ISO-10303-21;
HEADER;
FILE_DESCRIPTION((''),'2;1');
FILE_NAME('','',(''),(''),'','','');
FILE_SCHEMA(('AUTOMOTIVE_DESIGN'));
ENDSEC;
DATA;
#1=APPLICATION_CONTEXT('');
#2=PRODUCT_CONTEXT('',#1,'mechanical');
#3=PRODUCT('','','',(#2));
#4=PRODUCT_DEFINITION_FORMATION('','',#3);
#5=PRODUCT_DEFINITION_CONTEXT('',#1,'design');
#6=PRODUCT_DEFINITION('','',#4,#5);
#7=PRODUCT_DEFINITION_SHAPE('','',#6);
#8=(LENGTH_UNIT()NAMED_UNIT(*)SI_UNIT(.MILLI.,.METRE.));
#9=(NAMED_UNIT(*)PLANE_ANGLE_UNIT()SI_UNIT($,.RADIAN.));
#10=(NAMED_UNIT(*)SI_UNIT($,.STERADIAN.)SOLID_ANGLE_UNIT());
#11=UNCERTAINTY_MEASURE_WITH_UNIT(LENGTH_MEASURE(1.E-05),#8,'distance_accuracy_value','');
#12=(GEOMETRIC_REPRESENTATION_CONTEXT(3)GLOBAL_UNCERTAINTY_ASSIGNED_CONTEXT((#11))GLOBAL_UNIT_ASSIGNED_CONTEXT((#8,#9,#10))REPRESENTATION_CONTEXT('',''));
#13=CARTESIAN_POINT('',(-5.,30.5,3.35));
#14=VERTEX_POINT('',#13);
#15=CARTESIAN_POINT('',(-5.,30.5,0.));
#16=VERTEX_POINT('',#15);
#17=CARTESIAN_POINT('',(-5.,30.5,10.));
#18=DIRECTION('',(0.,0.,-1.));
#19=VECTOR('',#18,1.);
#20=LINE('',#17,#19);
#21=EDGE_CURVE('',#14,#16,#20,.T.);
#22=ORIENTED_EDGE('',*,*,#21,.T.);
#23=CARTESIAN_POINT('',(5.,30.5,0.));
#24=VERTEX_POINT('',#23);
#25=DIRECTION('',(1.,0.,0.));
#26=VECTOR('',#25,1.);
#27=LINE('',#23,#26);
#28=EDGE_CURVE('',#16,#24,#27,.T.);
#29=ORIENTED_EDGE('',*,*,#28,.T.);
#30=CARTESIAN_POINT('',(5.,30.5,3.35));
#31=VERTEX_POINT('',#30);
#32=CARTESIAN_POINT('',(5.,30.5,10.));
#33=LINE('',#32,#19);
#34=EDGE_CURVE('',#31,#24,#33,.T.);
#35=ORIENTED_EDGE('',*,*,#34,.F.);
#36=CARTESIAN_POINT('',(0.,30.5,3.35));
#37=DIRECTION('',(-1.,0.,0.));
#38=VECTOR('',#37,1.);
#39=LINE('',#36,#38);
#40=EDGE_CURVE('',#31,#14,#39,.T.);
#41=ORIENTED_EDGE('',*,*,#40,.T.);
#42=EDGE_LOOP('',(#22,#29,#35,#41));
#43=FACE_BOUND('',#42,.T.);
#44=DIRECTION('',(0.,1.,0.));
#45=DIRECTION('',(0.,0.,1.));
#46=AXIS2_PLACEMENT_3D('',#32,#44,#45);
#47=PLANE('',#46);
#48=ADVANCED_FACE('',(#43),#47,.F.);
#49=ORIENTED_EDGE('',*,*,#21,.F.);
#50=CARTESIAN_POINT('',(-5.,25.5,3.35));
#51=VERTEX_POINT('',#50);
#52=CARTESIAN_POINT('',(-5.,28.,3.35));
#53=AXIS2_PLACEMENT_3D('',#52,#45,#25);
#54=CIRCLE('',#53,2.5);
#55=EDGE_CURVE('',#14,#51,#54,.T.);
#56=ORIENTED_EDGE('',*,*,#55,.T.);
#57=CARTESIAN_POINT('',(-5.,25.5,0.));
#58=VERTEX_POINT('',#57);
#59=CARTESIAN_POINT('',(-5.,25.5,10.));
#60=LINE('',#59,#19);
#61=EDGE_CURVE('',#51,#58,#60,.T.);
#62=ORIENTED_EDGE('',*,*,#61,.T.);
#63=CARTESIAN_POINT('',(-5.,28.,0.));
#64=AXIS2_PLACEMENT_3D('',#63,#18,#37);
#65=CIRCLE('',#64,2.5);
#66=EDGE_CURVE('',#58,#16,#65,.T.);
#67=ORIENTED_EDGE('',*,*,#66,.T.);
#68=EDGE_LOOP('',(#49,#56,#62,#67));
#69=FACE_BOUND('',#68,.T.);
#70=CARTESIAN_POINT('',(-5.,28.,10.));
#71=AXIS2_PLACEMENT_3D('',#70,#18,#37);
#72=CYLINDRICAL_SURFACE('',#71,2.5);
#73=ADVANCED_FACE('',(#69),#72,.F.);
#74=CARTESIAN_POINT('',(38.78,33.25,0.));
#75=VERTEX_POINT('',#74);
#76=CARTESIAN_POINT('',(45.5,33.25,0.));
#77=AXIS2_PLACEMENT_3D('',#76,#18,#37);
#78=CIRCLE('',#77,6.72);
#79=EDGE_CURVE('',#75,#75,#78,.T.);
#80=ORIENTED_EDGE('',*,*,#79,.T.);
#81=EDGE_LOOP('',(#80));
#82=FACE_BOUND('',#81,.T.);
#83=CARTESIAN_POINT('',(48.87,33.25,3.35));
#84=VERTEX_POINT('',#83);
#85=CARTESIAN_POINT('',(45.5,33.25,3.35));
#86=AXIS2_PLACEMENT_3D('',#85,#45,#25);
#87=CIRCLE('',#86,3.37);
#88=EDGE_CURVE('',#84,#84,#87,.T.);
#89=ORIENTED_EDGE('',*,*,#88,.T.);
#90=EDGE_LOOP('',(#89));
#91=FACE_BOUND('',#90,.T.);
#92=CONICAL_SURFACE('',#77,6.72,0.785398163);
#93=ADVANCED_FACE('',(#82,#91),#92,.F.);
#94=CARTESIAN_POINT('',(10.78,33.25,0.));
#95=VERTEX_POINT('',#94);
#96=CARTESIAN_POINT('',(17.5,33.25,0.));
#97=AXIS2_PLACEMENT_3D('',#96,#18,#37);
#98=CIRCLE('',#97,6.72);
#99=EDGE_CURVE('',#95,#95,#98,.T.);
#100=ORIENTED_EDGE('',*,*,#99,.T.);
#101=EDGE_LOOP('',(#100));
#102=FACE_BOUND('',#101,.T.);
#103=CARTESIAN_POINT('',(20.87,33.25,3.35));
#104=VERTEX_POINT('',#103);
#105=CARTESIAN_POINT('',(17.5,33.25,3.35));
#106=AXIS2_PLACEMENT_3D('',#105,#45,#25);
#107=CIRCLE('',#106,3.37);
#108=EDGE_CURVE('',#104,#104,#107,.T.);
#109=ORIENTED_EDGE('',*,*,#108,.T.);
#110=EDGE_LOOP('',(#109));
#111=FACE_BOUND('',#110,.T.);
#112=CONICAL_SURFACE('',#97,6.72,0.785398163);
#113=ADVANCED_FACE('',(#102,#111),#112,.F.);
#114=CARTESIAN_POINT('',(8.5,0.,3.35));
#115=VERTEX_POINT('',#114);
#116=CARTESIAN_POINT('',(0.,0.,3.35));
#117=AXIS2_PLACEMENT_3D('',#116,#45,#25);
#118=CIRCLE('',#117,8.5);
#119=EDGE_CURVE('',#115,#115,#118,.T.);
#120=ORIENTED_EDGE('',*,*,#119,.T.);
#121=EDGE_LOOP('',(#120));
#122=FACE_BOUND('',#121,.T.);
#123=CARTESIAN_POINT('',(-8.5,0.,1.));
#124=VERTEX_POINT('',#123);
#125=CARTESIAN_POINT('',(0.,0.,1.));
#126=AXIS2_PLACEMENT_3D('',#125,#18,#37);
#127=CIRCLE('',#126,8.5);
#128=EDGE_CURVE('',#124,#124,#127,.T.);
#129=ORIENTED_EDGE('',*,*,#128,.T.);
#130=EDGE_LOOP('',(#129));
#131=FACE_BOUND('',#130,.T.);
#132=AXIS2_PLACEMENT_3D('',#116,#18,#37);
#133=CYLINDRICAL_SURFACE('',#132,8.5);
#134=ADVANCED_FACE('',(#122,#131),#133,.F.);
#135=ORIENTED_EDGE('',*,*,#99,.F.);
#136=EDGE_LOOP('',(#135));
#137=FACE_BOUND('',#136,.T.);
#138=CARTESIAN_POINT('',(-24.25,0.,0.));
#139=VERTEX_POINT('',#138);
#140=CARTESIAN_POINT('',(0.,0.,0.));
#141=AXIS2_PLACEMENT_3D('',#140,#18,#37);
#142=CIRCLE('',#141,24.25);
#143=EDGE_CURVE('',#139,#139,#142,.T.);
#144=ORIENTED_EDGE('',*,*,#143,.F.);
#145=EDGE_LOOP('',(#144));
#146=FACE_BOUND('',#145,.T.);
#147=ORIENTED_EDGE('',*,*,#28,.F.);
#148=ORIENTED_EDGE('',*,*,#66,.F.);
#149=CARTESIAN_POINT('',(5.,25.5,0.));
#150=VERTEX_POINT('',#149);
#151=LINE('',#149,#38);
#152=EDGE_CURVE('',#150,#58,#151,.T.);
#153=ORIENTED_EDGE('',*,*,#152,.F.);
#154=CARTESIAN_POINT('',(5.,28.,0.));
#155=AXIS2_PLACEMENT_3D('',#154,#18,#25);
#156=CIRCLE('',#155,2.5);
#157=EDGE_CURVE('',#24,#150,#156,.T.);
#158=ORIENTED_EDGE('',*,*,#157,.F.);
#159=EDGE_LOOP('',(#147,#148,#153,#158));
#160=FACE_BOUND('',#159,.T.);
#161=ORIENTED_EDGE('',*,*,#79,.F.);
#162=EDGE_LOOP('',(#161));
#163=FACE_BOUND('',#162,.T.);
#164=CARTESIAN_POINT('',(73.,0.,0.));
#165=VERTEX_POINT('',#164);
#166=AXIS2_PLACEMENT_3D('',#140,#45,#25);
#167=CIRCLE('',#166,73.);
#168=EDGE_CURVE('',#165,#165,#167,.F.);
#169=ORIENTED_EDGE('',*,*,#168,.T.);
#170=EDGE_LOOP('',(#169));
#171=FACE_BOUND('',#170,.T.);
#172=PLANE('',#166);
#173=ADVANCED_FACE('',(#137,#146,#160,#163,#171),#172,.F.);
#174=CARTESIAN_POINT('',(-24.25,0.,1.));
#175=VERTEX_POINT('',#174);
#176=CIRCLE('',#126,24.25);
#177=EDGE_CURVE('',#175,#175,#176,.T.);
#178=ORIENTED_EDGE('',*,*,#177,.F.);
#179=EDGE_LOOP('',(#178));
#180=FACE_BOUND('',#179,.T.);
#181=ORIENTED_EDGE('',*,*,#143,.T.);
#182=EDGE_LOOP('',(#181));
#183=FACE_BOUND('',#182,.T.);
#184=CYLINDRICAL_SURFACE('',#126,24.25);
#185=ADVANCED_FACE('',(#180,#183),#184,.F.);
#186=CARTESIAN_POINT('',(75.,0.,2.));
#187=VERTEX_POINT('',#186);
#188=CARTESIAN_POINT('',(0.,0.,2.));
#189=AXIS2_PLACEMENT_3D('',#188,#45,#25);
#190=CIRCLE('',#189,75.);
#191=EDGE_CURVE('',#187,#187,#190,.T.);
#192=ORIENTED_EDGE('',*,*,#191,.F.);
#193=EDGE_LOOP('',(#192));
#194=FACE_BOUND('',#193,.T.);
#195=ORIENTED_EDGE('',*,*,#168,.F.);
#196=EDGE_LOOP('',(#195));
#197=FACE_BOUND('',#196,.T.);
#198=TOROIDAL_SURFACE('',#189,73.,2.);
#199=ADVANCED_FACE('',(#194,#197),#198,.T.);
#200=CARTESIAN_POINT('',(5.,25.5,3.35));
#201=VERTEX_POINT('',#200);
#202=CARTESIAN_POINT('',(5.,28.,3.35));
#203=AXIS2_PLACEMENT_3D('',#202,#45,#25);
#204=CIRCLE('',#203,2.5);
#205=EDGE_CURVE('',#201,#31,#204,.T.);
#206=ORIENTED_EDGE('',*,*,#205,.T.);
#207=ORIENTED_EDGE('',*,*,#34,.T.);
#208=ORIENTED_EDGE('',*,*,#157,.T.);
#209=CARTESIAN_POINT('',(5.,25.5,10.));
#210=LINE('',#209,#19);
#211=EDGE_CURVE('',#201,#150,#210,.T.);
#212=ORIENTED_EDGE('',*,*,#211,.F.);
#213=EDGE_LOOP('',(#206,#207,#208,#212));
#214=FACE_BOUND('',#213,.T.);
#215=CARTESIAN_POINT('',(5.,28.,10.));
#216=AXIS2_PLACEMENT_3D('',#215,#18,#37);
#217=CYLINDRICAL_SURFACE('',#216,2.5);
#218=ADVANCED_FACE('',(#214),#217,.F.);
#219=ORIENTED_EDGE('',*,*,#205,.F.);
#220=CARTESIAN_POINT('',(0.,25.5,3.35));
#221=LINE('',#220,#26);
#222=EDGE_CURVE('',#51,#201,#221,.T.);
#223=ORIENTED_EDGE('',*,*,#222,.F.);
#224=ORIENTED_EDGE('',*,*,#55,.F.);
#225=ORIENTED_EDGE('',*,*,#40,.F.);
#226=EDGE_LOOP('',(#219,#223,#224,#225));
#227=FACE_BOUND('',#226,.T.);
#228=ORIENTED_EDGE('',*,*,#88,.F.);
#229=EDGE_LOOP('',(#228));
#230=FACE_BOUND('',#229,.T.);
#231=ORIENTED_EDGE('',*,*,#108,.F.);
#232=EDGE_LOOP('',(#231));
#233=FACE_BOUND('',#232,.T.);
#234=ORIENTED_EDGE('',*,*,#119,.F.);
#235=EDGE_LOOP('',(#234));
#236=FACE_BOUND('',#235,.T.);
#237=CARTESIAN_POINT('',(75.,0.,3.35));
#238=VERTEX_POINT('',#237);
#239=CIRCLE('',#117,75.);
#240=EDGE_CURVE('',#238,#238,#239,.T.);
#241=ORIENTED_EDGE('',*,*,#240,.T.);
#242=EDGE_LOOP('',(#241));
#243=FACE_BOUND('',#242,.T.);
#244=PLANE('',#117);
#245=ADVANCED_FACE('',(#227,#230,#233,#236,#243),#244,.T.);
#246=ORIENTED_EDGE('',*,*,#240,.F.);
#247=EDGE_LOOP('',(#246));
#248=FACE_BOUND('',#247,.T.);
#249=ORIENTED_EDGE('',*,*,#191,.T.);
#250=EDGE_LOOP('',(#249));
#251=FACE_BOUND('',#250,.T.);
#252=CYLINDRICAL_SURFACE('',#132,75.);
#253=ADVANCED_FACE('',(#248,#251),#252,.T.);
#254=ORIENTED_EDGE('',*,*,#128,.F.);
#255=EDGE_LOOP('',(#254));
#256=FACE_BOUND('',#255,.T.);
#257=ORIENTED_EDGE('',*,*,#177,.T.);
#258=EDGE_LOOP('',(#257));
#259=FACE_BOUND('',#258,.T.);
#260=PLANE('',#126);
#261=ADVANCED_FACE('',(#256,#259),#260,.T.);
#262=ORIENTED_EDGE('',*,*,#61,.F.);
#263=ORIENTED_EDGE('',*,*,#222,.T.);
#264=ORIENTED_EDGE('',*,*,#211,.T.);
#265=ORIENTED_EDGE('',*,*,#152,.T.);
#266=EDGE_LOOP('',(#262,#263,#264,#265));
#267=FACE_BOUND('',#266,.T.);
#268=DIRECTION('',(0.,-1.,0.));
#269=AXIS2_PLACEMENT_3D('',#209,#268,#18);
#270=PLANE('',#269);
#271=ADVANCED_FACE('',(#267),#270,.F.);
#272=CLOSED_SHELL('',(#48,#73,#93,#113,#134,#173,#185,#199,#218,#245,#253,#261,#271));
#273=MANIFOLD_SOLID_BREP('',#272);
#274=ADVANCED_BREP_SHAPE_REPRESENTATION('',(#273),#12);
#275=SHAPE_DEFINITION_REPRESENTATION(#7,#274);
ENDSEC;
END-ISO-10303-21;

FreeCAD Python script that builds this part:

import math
import FreeCAD as App
import Part
import Sketcher
from FreeCAD import Vector
Q = App.Units.Quantity


def edges_at(feature, points):
    """Names of the edges that pass closest to the given points."""
    edges = feature.Shape.Edges
    near = lambda p: min(range(len(edges)), key=lambda i: edges[i].distToShape(Part.Vertex(*p))[0])
    return sorted({f"Edge{near(p) + 1}" for p in points})

doc = App.newDocument("Part")
body = doc.addObject("PartDesign::Body", "Body")

sketch1 = doc.addObject("Sketcher::SketchObject", "Sketch")
body.addObject(sketch1)
sketch1.AttachmentSupport = (doc.XY_Plane, [""])
sketch1.MapMode = "FlatFace"
sketch1.addGeometry(Part.Circle(Vector(0, 0, 0), Vector(0, 0, 1), 75), False)
sketch1.addGeometry(Part.Circle(Vector(0, 0, 0), Vector(0, 0, 1), 8.5), False)
sketch1.addConstraint(Sketcher.Constraint("Coincident", 0, 3, -1, 1))
sketch1.addConstraint(Sketcher.Constraint("Coincident", 1, 3, -1, 1))
sketch1.addConstraint(Sketcher.Constraint("Diameter", 0, Q("150 mm")))
sketch1.addConstraint(Sketcher.Constraint("Diameter", 1, Q("17 mm")))
pad1 = doc.addObject("PartDesign::Pad", "Pad")
body.addObject(pad1)
pad1.Profile = sketch1
pad1.Length = 3.35

sketch2 = doc.addObject("Sketcher::SketchObject", "Sketch001")
body.addObject(sketch2)
sketch2.AttachmentSupport = (doc.XY_Plane, [""])
sketch2.MapMode = "FlatFace"
sketch2.addGeometry(Part.Circle(Vector(0, 0, 0), Vector(0, 0, 1), 24.25), False)
sketch2.addConstraint(Sketcher.Constraint("Coincident", 0, 3, -1, 1))
sketch2.addConstraint(Sketcher.Constraint("Diameter", 0, Q("48.5 mm")))
pocket1 = doc.addObject("PartDesign::Pocket", "Pocket")
body.addObject(pocket1)
pocket1.Profile = sketch2
pocket1.Length = 1
pocket1.Reversed = True

sketch3 = doc.addObject("Sketcher::SketchObject", "Sketch002")
body.addObject(sketch3)
sketch3.AttachmentSupport = (doc.XY_Plane, [""])
sketch3.MapMode = "FlatFace"
sketch3.addGeometry(Part.LineSegment(Vector(5, 25.5, 0), Vector(-5, 25.5, 0)), False)
sketch3.addGeometry(Part.ArcOfCircle(Part.Circle(Vector(-5, 28, 0), Vector(0, 0, 1), 2.5), math.radians(90), math.radians(270)), False)
sketch3.addGeometry(Part.LineSegment(Vector(-5, 30.5, 0), Vector(5, 30.5, 0)), False)
sketch3.addGeometry(Part.ArcOfCircle(Part.Circle(Vector(5, 28, 0), Vector(0, 0, 1), 2.5), math.radians(-90), math.radians(90)), False)
sketch3.addConstraint(Sketcher.Constraint("Tangent", 0, 2, 1, 2))
sketch3.addConstraint(Sketcher.Constraint("Tangent", 1, 1, 2, 1))
sketch3.addConstraint(Sketcher.Constraint("Tangent", 2, 2, 3, 2))
sketch3.addConstraint(Sketcher.Constraint("Tangent", 3, 1, 0, 1))
sketch3.addConstraint(Sketcher.Constraint("Horizontal", 0))
sketch3.addConstraint(Sketcher.Constraint("Horizontal", 2))
sketch3.addConstraint(Sketcher.Constraint("Radius", 1, Q("2.5 mm")))
sketch3.addConstraint(Sketcher.Constraint("DistanceX", 0, 2, 0, 1, Q("10 mm")))
sketch3.addConstraint(Sketcher.Constraint("DistanceX", 1, 3, -1, 1, Q("5 mm")))
sketch3.addConstraint(Sketcher.Constraint("DistanceY", -1, 1, 1, 3, Q("28 mm")))
pocket2 = doc.addObject("PartDesign::Pocket", "Pocket001")
body.addObject(pocket2)
pocket2.Profile = sketch3
pocket2.Length = 10
pocket2.Reversed = True

sketch4 = doc.addObject("Sketcher::SketchObject", "Sketch003")
body.addObject(sketch4)
sketch4.AttachmentSupport = (doc.YZ_Plane, [""])
sketch4.MapMode = "FlatFace"
sketch4.AttachmentOffset = App.Placement(Vector(0, 0, 17.5), App.Rotation())
sketch4.addGeometry(Part.LineSegment(Vector(33.25, 3.35, 0), Vector(33.25, 0, 0)), False)
sketch4.addGeometry(Part.LineSegment(Vector(33.25, 0, 0), Vector(39.97, 0, 0)), False)
sketch4.addGeometry(Part.LineSegment(Vector(39.97, 0, 0), Vector(36.55, 3.42, 0)), False)
sketch4.addGeometry(Part.LineSegment(Vector(36.55, 3.42, 0), Vector(36.55, 3.35, 0)), False)
sketch4.addGeometry(Part.LineSegment(Vector(36.55, 3.35, 0), Vector(33.25, 3.35, 0)), False)
sketch4.addGeometry(Part.LineSegment(Vector(33.25, 0, 0), Vector(33.25, 3.42, 0)), True)
sketch4.addConstraint(Sketcher.Constraint("Coincident", 0, 2, 1, 1))
sketch4.addConstraint(Sketcher.Constraint("Coincident", 1, 2, 2, 1))
sketch4.addConstraint(Sketcher.Constraint("Coincident", 2, 2, 3, 1))
sketch4.addConstraint(Sketcher.Constraint("Coincident", 3, 2, 4, 1))
sketch4.addConstraint(Sketcher.Constraint("Coincident", 4, 2, 0, 1))
sketch4.addConstraint(Sketcher.Constraint("Vertical", 0))
sketch4.addConstraint(Sketcher.Constraint("Horizontal", 1))
sketch4.addConstraint(Sketcher.Constraint("Vertical", 3))
sketch4.addConstraint(Sketcher.Constraint("Horizontal", 4))
sketch4.addConstraint(Sketcher.Constraint("Vertical", 5))
sketch4.addConstraint(Sketcher.Constraint("Coincident", 5, 1, 0, 2))
sketch4.addConstraint(Sketcher.Constraint("PointOnObject", 0, 2, -1))
sketch4.addConstraint(Sketcher.Constraint("Horizontal", 2, 2, 5, 2))
sketch4.addConstraint(Sketcher.Constraint("Angle", 2, Q("135 deg")))
sketch4.addConstraint(Sketcher.Constraint("DistanceX", 4, 2, 4, 1, Q("3.3 mm")))
sketch4.addConstraint(Sketcher.Constraint("DistanceX", 1, 1, 1, 2, Q("6.72 mm")))
sketch4.addConstraint(Sketcher.Constraint("DistanceY", 0, 2, 0, 1, Q("3.35 mm")))
sketch4.addConstraint(Sketcher.Constraint("DistanceX", -1, 1, 0, 2, Q("33.25 mm")))
groove = doc.addObject("PartDesign::Groove", "Groove")
body.addObject(groove)
groove.Profile = sketch4
groove.ReferenceAxis = (sketch4, ["Axis0"])
groove.Angle = 360
doc.recompute()

linearpattern = doc.addObject("PartDesign::LinearPattern", "LinearPattern")
body.addObject(linearpattern)
linearpattern.Originals = [groove]
linearpattern.Direction = (doc.X_Axis, [""])
linearpattern.Mode = "offset"
linearpattern.Offset = 28
linearpattern.Occurrences = 2
body.Tip = linearpattern
doc.recompute()

fillet = doc.addObject("PartDesign::Fillet", "Fillet")
body.addObject(fillet)
fillet.Base = (linearpattern, edges_at(linearpattern, [(-75, 0, 0)]))
fillet.Radius = 2

doc.recompute()
